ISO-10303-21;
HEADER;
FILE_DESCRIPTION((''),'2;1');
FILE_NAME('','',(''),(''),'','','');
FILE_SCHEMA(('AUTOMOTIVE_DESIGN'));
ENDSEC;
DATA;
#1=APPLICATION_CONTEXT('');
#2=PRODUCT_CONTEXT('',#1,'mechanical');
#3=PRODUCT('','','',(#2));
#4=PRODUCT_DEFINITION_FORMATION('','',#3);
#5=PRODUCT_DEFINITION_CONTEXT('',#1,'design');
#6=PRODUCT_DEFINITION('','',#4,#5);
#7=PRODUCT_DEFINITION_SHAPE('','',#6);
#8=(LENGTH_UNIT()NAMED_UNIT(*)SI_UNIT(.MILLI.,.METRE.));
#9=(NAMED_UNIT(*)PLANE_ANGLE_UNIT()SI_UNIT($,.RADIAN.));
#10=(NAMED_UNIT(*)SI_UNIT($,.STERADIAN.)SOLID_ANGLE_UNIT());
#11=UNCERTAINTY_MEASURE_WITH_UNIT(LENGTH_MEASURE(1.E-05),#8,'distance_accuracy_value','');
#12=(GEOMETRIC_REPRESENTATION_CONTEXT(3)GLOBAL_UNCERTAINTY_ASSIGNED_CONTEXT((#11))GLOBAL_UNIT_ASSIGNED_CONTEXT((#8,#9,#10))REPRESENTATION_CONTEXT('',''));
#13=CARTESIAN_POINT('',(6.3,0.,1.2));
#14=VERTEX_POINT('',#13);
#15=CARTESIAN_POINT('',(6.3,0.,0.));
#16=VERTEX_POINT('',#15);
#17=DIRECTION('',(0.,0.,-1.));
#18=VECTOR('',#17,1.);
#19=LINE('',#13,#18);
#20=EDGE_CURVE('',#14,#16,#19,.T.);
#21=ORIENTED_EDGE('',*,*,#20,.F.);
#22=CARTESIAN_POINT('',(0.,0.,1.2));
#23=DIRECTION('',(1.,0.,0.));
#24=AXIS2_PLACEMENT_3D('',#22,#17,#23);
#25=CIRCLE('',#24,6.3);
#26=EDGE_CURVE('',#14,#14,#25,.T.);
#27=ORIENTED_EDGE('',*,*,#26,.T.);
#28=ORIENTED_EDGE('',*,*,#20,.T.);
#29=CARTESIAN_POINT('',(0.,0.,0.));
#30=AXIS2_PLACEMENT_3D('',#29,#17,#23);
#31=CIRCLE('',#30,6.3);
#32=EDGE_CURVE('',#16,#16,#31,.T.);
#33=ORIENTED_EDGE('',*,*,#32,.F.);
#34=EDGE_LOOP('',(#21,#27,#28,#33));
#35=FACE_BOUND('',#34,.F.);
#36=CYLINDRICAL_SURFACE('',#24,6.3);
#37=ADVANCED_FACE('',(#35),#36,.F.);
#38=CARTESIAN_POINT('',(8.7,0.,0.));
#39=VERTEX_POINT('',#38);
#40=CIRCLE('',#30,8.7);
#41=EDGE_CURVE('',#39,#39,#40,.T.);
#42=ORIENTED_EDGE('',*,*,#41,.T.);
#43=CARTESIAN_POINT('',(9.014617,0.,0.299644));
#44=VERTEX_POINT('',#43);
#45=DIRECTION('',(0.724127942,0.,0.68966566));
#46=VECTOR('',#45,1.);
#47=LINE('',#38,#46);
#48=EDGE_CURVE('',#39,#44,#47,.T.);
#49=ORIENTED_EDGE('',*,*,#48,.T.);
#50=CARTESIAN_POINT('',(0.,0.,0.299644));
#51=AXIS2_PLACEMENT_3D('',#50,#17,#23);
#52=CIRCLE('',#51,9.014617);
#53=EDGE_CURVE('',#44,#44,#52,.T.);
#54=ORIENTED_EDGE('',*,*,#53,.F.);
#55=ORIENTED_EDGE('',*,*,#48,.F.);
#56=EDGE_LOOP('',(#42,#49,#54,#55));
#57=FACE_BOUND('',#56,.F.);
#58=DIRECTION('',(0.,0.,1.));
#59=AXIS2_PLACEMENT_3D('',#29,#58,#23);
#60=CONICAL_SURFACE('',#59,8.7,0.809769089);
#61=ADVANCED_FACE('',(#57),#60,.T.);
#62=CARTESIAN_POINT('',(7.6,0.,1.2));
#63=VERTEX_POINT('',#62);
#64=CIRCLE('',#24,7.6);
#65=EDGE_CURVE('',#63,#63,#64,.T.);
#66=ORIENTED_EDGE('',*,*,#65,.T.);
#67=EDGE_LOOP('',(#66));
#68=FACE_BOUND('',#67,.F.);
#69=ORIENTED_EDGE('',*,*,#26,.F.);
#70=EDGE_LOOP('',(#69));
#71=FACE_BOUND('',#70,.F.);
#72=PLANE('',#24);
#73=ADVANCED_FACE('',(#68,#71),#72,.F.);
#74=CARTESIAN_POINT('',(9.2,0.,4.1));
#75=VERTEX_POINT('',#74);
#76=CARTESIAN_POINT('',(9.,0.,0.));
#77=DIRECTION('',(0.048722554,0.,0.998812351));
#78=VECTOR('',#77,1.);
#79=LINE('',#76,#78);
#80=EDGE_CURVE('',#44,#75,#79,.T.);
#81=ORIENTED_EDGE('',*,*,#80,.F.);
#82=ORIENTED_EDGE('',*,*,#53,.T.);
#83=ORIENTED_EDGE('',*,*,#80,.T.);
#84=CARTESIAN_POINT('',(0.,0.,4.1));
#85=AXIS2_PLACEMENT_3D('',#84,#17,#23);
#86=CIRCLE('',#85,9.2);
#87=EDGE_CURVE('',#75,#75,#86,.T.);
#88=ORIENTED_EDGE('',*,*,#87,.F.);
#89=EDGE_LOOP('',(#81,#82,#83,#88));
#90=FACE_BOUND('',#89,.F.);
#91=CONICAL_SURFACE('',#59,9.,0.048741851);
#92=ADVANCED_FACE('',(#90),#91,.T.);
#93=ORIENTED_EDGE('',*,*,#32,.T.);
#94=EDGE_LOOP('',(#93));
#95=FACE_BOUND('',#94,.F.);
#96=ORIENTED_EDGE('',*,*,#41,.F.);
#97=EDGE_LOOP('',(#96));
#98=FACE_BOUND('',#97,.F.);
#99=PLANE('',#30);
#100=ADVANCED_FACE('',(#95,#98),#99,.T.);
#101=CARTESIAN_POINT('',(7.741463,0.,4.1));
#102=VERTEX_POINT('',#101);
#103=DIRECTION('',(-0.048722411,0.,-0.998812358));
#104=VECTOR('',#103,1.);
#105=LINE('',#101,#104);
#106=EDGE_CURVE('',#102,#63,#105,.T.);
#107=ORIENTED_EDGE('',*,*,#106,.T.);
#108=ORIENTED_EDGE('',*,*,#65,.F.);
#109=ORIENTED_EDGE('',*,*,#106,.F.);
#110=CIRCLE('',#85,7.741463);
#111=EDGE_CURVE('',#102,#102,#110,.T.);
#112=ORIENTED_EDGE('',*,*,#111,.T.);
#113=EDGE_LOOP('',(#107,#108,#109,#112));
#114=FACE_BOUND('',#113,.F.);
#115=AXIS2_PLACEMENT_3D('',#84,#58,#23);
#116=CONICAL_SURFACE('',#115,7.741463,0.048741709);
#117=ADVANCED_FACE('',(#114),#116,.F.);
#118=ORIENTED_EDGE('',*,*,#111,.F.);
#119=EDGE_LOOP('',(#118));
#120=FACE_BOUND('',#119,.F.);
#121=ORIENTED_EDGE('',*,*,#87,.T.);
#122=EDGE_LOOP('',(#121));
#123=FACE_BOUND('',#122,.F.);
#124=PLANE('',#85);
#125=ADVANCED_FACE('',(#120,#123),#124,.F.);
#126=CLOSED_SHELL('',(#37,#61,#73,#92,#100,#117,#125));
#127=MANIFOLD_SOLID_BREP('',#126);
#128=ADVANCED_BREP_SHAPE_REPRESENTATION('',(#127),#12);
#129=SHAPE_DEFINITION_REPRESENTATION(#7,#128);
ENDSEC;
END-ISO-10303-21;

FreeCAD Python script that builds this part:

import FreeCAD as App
import Part
import Sketcher

V = App.Vector
Q = App.Units.Quantity


def edges_at(feature, points):
    """Names of the edges that pass closest to the given points."""
    edges = feature.Shape.Edges
    near = lambda p: min(range(len(edges)), key=lambda i: edges[i].distToShape(Part.Vertex(*p))[0])
    return sorted({f"Edge{near(p) + 1}" for p in points})

doc = App.newDocument("Part")
body = doc.addObject("PartDesign::Body", "Body")

sketch1 = body.newObject("Sketcher::SketchObject", "Sketch")
sketch1.AttachmentSupport = (doc.getObject("XZ_Plane"), [""])
sketch1.MapMode = "FlatFace"
sketch1.addGeometry(Part.LineSegment(V(6.3, 1.2, 0), V(6.3, 0, 0)), False)
sketch1.addGeometry(Part.LineSegment(V(6.3, 0, 0), V(9, 0, 0)), False)
sketch1.addGeometry(Part.LineSegment(V(9, 0, 0), V(9.2, 4.1, 0)), False)
sketch1.addGeometry(Part.LineSegment(V(9.2, 4.1, 0), V(7.7, 4.1, 0)), False)
sketch1.addGeometry(Part.LineSegment(V(7.7, 4.1, 0), V(7.6, 1.2, 0)), False)
sketch1.addGeometry(Part.LineSegment(V(7.6, 1.2, 0), V(6.3, 1.2, 0)), False)
sketch1.addConstraint(Sketcher.Constraint("Coincident", 0, 2, 1, 1))
sketch1.addConstraint(Sketcher.Constraint("Coincident", 1, 2, 2, 1))
sketch1.addConstraint(Sketcher.Constraint("Coincident", 2, 2, 3, 1))
sketch1.addConstraint(Sketcher.Constraint("Coincident", 3, 2, 4, 1))
sketch1.addConstraint(Sketcher.Constraint("Coincident", 4, 2, 5, 1))
sketch1.addConstraint(Sketcher.Constraint("Coincident", 5, 2, 0, 1))
sketch1.addConstraint(Sketcher.Constraint("Vertical", 0))
sketch1.addConstraint(Sketcher.Constraint("Horizontal", 1))
sketch1.addConstraint(Sketcher.Constraint("Horizontal", 3))
sketch1.addConstraint(Sketcher.Constraint("Horizontal", 5))
sketch1.addConstraint(Sketcher.Constraint("PointOnObject", 0, 2, -1))
sketch1.addConstraint(Sketcher.Constraint("Parallel", 2, 4))
sketch1.addConstraint(Sketcher.Constraint("DistanceX", 1, 1, 1, 2, Q("2.7 mm")))
sketch1.addConstraint(Sketcher.Constraint("DistanceX", 5, 2, 5, 1, Q("1.3 mm")))
sketch1.addConstraint(Sketcher.Constraint("DistanceY", 0, 2, 0, 1, Q("1.2 mm")))
sketch1.addConstraint(Sketcher.Constraint("DistanceX", -1, 1, 1, 2, Q("9 mm")))
sketch1.addConstraint(Sketcher.Constraint("DistanceX", -1, 1, 2, 2, Q("9.2 mm")))
sketch1.addConstraint(Sketcher.Constraint("DistanceY", -1, 1, 2, 2, Q("4.1 mm")))
revolution = body.newObject("PartDesign::Revolution", "Revolution")
revolution.Profile = sketch1
revolution.ReferenceAxis = (sketch1, ["V_Axis"])
revolution.Angle = 360
doc.recompute()

chamfer = body.newObject("PartDesign::Chamfer", "Chamfer")
chamfer.Base = (revolution, edges_at(revolution, [(-9, 0, 0)]))
chamfer.Size = 0.3

doc.recompute()
